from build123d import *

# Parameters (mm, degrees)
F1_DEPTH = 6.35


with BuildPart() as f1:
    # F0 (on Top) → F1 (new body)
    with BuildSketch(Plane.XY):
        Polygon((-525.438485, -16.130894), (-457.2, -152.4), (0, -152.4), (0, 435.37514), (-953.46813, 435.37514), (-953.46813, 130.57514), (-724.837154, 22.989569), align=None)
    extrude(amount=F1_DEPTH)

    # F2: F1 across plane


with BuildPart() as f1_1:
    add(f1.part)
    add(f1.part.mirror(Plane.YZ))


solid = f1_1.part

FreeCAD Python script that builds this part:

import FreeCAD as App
import Part
import Sketcher

V = App.Vector
Q = App.Units.Quantity


def add_polygon(sketch, points):
    """Adds a closed chain of lines whose ends are joined by coincident constraints."""
    first, n = sketch.GeometryCount, len(points)
    for a, b in zip(points, points[1:] + points[:1]):
        sketch.addGeometry(Part.LineSegment(App.Vector(*a, 0), App.Vector(*b, 0)), False)
    for i in range(n):
        sketch.addConstraint(Sketcher.Constraint("Coincident", first + i, 2, first + (i + 1) % n, 1))

doc = App.newDocument("Part")
params = doc.addObject("Spreadsheet::Sheet", "Params")
for row, (alias, value) in enumerate([
    ("sketch1_width", "18 in"),
    ("sketch1_height", "12 in"),
    ("sketch1_length", "6 in"),
    ("sketch1_length2", "8 in"),
    ("sketch1_length3", "9.948 in"),
    ("pad1_length", "0.25 in"),
], start=1):
    params.set(f"A{row}", alias)
    params.set(f"B{row}", "=" + value)
    params.setAlias(f"B{row}", alias)

body = doc.addObject("PartDesign::Body", "Body")

# Sketch on XY plane
sketch1 = doc.addObject("Sketcher::SketchObject", "Sketch")
body.addObject(sketch1)
sketch1.AttachmentSupport = (doc.XY_Plane, [""])
sketch1.MapMode = "FlatFace"
add_polygon(sketch1, [(-525, -16), (-457, -152), (0, -152), (0, 435), (-953, 435), (-953, 131), (-725, 23)])  # lines 0-6
sketch1.addConstraint([
    Sketcher.Constraint("Horizontal", 1),
    Sketcher.Constraint("Vertical", 2),
    Sketcher.Constraint("Horizontal", 3),
    Sketcher.Constraint("Vertical", 4),
    Sketcher.Constraint("PointOnObject", 1, 2, -2),
    Sketcher.Constraint("DistanceX", 1, 1, 1, 2, Q("18 in")),
    Sketcher.Constraint("DistanceY", 4, 2, 4, 1, Q("12 in")),
    Sketcher.Constraint("Distance", 0, Q("6 in")),
    Sketcher.Constraint("Distance", 6, Q("8 in")),
    Sketcher.Constraint("DistanceY", 0, 2, -1, 1, Q("6 in")),
    Sketcher.Constraint("Angle", 0, Q("-63.4 deg")),
    Sketcher.Constraint("Angle", 5, Q("-25.2 deg")),
    Sketcher.Constraint("Angle", 6, Q("-11.1 deg")),
    Sketcher.Constraint("Distance", 5, Q("9.948 in")),
])
sketch1.setExpression("Constraints[12]", "Params.sketch1_width")
sketch1.setExpression("Constraints[13]", "Params.sketch1_height")
sketch1.setExpression("Constraints[14]", "Params.sketch1_length")
sketch1.setExpression("Constraints[15]", "Params.sketch1_length2")
sketch1.setExpression("Constraints[20]", "Params.sketch1_length3")
pad1 = doc.addObject("PartDesign::Pad", "Pad")
body.addObject(pad1)
pad1.Profile = sketch1
pad1.setExpression("Length", "Params.pad1_length")
body2 = doc.addObject("PartDesign::Body", "Body001")
doc.recompute()

body2.BaseFeature = body
doc.recompute()

mirroring = doc.addObject("Part::Mirroring", "Mirroring")
mirroring.Source = body
mirroring.Base = V(0, 0, 0)
mirroring.Normal = V(1, 0, 0)
body3 = doc.addObject("PartDesign::Body", "Body002")
body3.BaseFeature = mirroring
boolean = doc.addObject("PartDesign::Boolean", "Boolean")
body2.addObject(boolean)
boolean.Type = "Fuse"
boolean.addObjects([body3])
doc.recompute()
mirroring.Visibility = False

doc.recompute()
